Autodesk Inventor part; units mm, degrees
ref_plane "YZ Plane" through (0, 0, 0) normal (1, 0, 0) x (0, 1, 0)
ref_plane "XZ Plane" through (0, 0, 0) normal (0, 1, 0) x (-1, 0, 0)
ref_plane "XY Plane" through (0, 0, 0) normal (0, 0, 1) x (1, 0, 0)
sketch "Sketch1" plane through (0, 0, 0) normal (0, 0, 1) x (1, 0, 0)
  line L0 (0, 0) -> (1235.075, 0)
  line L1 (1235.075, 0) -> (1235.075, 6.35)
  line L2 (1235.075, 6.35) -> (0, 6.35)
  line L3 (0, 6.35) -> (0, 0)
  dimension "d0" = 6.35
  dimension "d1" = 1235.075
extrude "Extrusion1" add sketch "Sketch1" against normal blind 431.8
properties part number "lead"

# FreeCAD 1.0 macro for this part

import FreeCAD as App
import Part
import Sketcher
Q = App.Units.Quantity

doc = App.newDocument("Part")
params = doc.addObject("Spreadsheet::Sheet", "Params")
for row, (alias, value) in enumerate([
    ("sketch1_height", "0.25 in"),
    ("sketch1_width", "48.625 in"),
    ("pad1_length", "17 in"),
], start=1):
    params.set(f"A{row}", alias)
    params.set(f"B{row}", "=" + value)
    params.setAlias(f"B{row}", alias)

body = doc.addObject("PartDesign::Body", "Body")

sketch1 = body.newObject("Sketcher::SketchObject", "Sketch")
sketch1.AttachmentSupport = (doc.getObject("XY_Plane"), [""])
sketch1.MapMode = "FlatFace"
sketch1.addGeometry(Part.LineSegment(App.Vector(0, 6, 0), App.Vector(0, 0, 0)), False)
sketch1.addGeometry(Part.LineSegment(App.Vector(0, 0, 0), App.Vector(1235, 0, 0)), False)
sketch1.addGeometry(Part.LineSegment(App.Vector(1235, 0, 0), App.Vector(1235, 6, 0)), False)
sketch1.addGeometry(Part.LineSegment(App.Vector(1235, 6, 0), App.Vector(0, 6, 0)), False)
sketch1.addConstraint(Sketcher.Constraint("Coincident", 0, 2, 1, 1))
sketch1.addConstraint(Sketcher.Constraint("Coincident", 1, 2, 2, 1))
sketch1.addConstraint(Sketcher.Constraint("Coincident", 2, 2, 3, 1))
sketch1.addConstraint(Sketcher.Constraint("Coincident", 3, 2, 0, 1))
sketch1.addConstraint(Sketcher.Constraint("Vertical", 0))
sketch1.addConstraint(Sketcher.Constraint("Horizontal", 1))
sketch1.addConstraint(Sketcher.Constraint("Vertical", 2))
sketch1.addConstraint(Sketcher.Constraint("Horizontal", 3))
sketch1.addConstraint(Sketcher.Constraint("Coincident", 0, 2, -1, 1))
sketch1.addConstraint(Sketcher.Constraint("DistanceY", 0, 2, 0, 1, Q("0.25 in")))
sketch1.addConstraint(Sketcher.Constraint("DistanceX", 1, 1, 1, 2, Q("48.625 in")))
sketch1.setExpression("Constraints[9]", "Params.sketch1_height")
sketch1.setExpression("Constraints[10]", "Params.sketch1_width")
pad1 = body.newObject("PartDesign::Pad", "Pad")
pad1.Profile = sketch1
pad1.setExpression("Length", "Params.pad1_length")
pad1.Reversed = True

doc.recompute()
